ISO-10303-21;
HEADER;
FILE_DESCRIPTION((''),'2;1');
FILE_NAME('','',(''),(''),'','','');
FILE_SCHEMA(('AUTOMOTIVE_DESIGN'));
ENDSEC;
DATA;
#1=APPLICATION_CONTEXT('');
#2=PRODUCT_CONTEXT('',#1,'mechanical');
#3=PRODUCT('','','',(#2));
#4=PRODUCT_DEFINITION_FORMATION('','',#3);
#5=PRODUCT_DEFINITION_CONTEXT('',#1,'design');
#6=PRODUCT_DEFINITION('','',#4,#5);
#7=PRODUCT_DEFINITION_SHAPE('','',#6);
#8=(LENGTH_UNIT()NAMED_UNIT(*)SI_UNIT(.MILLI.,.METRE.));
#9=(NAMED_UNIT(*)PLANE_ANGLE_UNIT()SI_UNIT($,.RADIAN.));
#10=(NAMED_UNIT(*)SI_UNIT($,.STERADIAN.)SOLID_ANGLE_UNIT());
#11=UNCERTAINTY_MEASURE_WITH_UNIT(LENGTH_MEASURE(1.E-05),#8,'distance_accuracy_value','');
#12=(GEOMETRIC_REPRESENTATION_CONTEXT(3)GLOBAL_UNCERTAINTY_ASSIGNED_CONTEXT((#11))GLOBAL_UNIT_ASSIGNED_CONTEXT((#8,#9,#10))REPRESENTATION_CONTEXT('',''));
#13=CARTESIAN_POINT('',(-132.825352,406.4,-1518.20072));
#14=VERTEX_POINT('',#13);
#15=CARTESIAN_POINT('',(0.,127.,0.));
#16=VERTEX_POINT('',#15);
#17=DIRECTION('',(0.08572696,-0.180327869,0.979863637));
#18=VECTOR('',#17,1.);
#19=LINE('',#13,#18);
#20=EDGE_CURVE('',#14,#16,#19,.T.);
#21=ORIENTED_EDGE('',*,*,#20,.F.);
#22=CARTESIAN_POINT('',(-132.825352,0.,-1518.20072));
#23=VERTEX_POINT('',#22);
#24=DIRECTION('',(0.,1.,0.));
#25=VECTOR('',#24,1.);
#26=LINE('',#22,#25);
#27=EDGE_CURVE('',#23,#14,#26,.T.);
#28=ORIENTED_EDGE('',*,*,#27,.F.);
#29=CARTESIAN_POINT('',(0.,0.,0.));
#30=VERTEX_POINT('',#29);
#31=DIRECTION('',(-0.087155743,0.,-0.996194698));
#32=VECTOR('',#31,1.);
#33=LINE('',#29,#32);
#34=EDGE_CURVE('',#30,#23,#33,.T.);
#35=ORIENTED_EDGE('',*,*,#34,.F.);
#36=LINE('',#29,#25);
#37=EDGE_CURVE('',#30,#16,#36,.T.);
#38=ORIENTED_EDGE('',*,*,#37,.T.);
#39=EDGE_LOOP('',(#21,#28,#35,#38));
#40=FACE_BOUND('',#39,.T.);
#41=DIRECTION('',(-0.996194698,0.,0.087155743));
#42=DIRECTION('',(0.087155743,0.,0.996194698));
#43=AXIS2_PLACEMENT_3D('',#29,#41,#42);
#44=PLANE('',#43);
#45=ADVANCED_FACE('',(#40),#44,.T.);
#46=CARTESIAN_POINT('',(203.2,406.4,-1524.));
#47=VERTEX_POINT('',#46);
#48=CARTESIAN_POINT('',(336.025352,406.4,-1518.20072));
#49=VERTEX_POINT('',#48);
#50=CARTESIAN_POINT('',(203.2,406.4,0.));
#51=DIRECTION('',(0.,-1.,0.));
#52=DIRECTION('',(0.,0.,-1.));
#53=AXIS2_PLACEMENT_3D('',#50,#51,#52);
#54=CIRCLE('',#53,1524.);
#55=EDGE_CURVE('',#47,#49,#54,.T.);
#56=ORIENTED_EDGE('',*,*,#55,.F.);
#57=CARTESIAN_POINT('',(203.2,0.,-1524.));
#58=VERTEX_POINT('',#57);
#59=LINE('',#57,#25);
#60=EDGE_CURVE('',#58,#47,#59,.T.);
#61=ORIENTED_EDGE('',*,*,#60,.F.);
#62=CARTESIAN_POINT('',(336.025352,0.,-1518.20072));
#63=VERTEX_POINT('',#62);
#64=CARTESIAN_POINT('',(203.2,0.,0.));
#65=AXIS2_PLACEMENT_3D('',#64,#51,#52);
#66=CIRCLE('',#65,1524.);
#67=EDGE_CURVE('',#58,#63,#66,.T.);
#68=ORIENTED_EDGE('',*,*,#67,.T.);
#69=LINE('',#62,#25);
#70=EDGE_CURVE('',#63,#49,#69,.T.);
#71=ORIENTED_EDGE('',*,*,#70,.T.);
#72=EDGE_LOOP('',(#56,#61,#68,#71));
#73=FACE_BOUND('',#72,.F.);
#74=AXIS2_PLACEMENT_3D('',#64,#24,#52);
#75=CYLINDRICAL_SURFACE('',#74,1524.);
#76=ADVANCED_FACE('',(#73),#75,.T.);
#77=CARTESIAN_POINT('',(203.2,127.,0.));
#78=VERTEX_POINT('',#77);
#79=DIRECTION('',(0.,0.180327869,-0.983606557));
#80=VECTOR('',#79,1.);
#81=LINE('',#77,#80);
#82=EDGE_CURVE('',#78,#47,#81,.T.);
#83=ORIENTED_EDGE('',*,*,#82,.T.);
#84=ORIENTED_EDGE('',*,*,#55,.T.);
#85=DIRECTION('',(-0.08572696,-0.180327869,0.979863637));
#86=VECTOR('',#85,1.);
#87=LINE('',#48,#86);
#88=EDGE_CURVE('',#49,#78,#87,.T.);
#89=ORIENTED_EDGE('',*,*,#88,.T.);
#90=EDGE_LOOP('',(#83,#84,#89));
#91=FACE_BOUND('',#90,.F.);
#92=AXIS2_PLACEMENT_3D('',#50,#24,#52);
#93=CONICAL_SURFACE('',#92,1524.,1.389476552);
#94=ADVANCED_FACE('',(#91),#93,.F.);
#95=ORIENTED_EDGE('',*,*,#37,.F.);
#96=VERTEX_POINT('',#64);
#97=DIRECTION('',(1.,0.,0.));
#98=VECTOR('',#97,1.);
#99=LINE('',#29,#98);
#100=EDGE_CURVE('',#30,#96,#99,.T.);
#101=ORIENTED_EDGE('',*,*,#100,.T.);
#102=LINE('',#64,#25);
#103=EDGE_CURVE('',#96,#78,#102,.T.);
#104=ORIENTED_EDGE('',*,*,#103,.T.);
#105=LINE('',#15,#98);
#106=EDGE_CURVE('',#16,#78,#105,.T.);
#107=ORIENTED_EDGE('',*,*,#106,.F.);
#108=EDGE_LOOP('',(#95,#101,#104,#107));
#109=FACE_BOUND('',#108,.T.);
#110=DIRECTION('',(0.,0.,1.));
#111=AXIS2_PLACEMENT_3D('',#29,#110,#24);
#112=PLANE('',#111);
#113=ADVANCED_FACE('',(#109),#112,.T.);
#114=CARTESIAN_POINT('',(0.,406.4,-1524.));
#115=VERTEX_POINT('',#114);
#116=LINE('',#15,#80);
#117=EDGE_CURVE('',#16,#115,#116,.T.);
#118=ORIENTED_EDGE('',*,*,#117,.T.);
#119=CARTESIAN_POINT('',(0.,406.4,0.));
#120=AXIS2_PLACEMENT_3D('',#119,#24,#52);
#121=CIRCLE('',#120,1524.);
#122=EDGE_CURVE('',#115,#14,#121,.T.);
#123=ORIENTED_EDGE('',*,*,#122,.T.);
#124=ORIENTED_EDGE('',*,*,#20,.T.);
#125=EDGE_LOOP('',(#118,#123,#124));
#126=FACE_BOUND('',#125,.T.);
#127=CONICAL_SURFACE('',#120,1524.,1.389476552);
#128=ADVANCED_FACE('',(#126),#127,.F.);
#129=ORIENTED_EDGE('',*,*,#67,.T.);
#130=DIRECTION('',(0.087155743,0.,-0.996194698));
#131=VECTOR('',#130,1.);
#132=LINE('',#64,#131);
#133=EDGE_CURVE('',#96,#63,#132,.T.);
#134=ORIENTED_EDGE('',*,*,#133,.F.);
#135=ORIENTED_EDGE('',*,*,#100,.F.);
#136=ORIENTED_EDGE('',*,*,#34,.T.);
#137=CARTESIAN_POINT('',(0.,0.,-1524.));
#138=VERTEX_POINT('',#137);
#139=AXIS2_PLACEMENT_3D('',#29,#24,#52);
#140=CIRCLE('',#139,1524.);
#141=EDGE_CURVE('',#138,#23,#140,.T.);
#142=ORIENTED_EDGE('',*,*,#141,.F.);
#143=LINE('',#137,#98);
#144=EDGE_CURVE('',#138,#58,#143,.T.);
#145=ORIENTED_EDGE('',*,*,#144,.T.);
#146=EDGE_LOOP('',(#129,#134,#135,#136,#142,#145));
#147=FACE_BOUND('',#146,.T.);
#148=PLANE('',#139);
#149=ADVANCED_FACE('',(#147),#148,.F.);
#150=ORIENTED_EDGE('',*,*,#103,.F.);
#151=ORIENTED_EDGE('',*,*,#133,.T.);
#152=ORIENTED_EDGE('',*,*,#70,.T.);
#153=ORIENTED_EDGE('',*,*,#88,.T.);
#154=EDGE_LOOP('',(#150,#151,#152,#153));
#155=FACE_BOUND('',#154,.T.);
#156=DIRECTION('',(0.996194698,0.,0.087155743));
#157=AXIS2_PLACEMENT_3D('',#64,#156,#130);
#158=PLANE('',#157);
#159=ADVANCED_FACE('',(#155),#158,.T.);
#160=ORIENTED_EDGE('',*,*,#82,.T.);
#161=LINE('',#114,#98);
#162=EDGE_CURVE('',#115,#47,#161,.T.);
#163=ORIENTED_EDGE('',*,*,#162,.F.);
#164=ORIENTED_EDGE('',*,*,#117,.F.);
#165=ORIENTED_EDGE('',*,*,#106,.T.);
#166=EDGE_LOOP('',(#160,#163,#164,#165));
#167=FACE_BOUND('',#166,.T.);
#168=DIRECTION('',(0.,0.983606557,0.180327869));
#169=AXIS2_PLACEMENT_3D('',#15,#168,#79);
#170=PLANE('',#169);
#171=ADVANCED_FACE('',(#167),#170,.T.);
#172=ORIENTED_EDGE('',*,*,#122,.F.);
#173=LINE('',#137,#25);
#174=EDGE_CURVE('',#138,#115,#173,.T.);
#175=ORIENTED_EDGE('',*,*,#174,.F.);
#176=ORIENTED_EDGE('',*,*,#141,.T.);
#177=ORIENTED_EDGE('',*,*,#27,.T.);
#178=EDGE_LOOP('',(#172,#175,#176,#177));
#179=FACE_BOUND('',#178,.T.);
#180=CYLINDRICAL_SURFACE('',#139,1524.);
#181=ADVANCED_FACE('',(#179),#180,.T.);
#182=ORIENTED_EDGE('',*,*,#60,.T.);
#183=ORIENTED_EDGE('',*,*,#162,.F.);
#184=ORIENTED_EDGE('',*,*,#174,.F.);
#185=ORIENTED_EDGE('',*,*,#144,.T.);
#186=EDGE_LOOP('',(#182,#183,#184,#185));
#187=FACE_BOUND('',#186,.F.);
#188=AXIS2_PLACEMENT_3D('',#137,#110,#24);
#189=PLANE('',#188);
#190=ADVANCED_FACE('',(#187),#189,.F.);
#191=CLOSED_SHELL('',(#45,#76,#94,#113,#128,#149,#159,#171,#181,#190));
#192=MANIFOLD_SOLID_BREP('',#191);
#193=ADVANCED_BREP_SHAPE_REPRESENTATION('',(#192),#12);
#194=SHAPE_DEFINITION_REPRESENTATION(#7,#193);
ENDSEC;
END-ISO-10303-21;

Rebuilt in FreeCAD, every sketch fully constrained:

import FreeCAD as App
import Part
import Sketcher
Q = App.Units.Quantity


def add_polygon(sketch, points):
    """Adds a closed chain of lines whose ends are joined by coincident constraints."""
    first, n = sketch.GeometryCount, len(points)
    for a, b in zip(points, points[1:] + points[:1]):
        sketch.addGeometry(Part.LineSegment(App.Vector(*a, 0), App.Vector(*b, 0)), False)
    for i in range(n):
        sketch.addConstraint(Sketcher.Constraint("Coincident", first + i, 2, first + (i + 1) % n, 1))

doc = App.newDocument("Part")
body = doc.addObject("PartDesign::Body", "Body")

sketch1 = body.newObject("Sketcher::SketchObject", "Sketch")
sketch1.AttachmentSupport = (doc.getObject("YZ_Plane"), [""])
sketch1.MapMode = "FlatFace"
add_polygon(sketch1, [(127, 0), (0, 0), (0, -1524), (406, -1524)])
sketch1.addConstraint(Sketcher.Constraint("Horizontal", 0))
sketch1.addConstraint(Sketcher.Constraint("Vertical", 1))
sketch1.addConstraint(Sketcher.Constraint("Horizontal", 2))
sketch1.addConstraint(Sketcher.Constraint("Coincident", 0, 2, -1, 1))
sketch1.addConstraint(Sketcher.Constraint("DistanceX", 0, 2, 0, 1, Q("5 in")))
sketch1.addConstraint(Sketcher.Constraint("DistanceX", 2, 1, 2, 2, Q("16 in")))
sketch1.addConstraint(Sketcher.Constraint("DistanceY", 1, 2, 1, 1, Q("60 in")))
pad1 = body.newObject("PartDesign::Pad", "Pad")
pad1.Profile = sketch1
pad1.Length = Q("8 in")

sketch2 = body.newObject("Sketcher::SketchObject", "Sketch001")
sketch2.AttachmentSupport = (doc.getObject("YZ_Plane"), [""])
sketch2.MapMode = "FlatFace"
sketch2.AttachmentOffset = App.Placement(App.Vector(0, 0, 8 * 25.4), App.Rotation())
add_polygon(sketch2, [(127, 0), (0, 0), (0, -1524), (406, -1524)])
sketch2.addConstraint(Sketcher.Constraint("Horizontal", 0))
sketch2.addConstraint(Sketcher.Constraint("Vertical", 1))
sketch2.addConstraint(Sketcher.Constraint("Horizontal", 2))
sketch2.addConstraint(Sketcher.Constraint("Coincident", 0, 2, -1, 1))
sketch2.addConstraint(Sketcher.Constraint("DistanceX", 0, 2, 0, 1, Q("5 in")))
sketch2.addConstraint(Sketcher.Constraint("DistanceX", 2, 1, 2, 2, Q("16 in")))
sketch2.addConstraint(Sketcher.Constraint("DistanceY", 1, 2, 1, 1, Q("60 in")))
revolution = body.newObject("PartDesign::Revolution", "Revolution")
revolution.Profile = sketch2
revolution.ReferenceAxis = (sketch2, ["H_Axis"])
revolution.Angle = 5
revolution.Reversed = True

sketch3 = body.newObject("Sketcher::SketchObject", "Sketch002")
sketch3.AttachmentSupport = (doc.getObject("YZ_Plane"), [""])
sketch3.MapMode = "FlatFace"
add_polygon(sketch3, [(0, -1524), (0, 0), (127, 0), (406, -1524)])
sketch3.addConstraint(Sketcher.Constraint("Vertical", 0))
sketch3.addConstraint(Sketcher.Constraint("Horizontal", 1))
sketch3.addConstraint(Sketcher.Constraint("Horizontal", 3))
sketch3.addConstraint(Sketcher.Constraint("Coincident", 0, 2, -1, 1))
sketch3.addConstraint(Sketcher.Constraint("DistanceX", 1, 1, 1, 2, Q("5 in")))
sketch3.addConstraint(Sketcher.Constraint("DistanceX", 3, 2, 3, 1, Q("16 in")))
sketch3.addConstraint(Sketcher.Constraint("DistanceY", 0, 1, 0, 2, Q("60 in")))
revolution2 = body.newObject("PartDesign::Revolution", "Revolution001")
revolution2.Profile = sketch3
revolution2.ReferenceAxis = (sketch3, ["H_Axis"])
revolution2.Angle = 5

doc.recompute()
